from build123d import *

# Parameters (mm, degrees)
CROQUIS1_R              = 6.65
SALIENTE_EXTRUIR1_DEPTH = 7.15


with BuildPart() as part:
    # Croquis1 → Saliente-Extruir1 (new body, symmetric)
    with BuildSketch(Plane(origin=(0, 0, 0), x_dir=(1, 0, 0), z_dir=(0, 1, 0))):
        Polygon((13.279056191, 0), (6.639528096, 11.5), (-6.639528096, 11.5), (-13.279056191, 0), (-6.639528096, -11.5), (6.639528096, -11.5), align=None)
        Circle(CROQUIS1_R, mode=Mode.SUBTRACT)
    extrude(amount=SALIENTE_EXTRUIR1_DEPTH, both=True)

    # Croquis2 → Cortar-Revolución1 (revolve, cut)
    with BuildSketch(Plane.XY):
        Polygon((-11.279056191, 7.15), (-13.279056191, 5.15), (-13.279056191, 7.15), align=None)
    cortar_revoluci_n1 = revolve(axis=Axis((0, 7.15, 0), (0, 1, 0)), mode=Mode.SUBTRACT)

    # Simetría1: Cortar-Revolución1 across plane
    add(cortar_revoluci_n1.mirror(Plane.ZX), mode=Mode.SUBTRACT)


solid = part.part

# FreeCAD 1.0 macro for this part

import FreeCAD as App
import Part
import Sketcher

V = App.Vector
Q = App.Units.Quantity

doc = App.newDocument("Part")
body = doc.addObject("PartDesign::Body", "Body")

sketch1 = body.newObject("Sketcher::SketchObject", "Sketch")
sketch1.AttachmentSupport = (doc.getObject("XZ_Plane"), [""])
sketch1.MapMode = "FlatFace"
sketch1.addGeometry([
    Part.LineSegment(V(13, 0, 0), V(7, -12, 0)),
    Part.LineSegment(V(7, -12, 0), V(-7, -12, 0)),
    Part.LineSegment(V(-7, -12, 0), V(-13, 0, 0)),
    Part.LineSegment(V(-13, 0, 0), V(-7, 12, 0)),
    Part.LineSegment(V(-7, 12, 0), V(7, 12, 0)),
    Part.LineSegment(V(7, 12, 0), V(13, 0, 0)),
    Part.Circle(V(0, 0, 0), V(0, 0, 1), 7),
], False)
sketch1.addConstraint([
    Sketcher.Constraint("Coincident", 0, 2, 1, 1),
    Sketcher.Constraint("Coincident", 1, 2, 2, 1),
    Sketcher.Constraint("Coincident", 2, 2, 3, 1),
    Sketcher.Constraint("Coincident", 3, 2, 4, 1),
    Sketcher.Constraint("Coincident", 4, 2, 5, 1),
    Sketcher.Constraint("Coincident", 5, 2, 0, 1),
    Sketcher.Constraint("Horizontal", 1),
    Sketcher.Constraint("Horizontal", 4),
    Sketcher.Constraint("Coincident", 6, 3, -1, 1),
    Sketcher.Constraint("Symmetric", 0, 2, 3, 2, -1, 1),
    Sketcher.Constraint("Symmetric", 2, 2, 5, 2, -1, 1),
    Sketcher.Constraint("PointOnObject", 2, 2, -1),
    Sketcher.Constraint("Parallel", 2, 5),
    Sketcher.Constraint("Vertical", 1, 2, 3, 2),
    Sketcher.Constraint("Diameter", 6, 13.3),
    Sketcher.Constraint("Angle", 0, Q("-120 deg")),
    Sketcher.Constraint("DistanceY", 1, 2, 3, 2, 23.0),
    Sketcher.Constraint("DistanceX", 1, 2, 1, 1, 13.279056),
])
pad1 = body.newObject("PartDesign::Pad", "Pad")
pad1.Profile = sketch1
pad1.Length = 14.3
pad1.Midplane = True

sketch2 = body.newObject("Sketcher::SketchObject", "Sketch001")
sketch2.AttachmentSupport = (doc.getObject("XY_Plane"), [""])
sketch2.MapMode = "FlatFace"
sketch2.addGeometry([
    Part.LineSegment(V(-13.3, 5.2, 0), V(-11.3, 7.2, 0)),
    Part.LineSegment(V(-11.3, 7.2, 0), V(-13.3, 7.2, 0)),
    Part.LineSegment(V(-13.3, 7.2, 0), V(-13.3, 5.2, 0)),
], False)
sketch2.addConstraint([
    Sketcher.Constraint("Coincident", 0, 2, 1, 1),
    Sketcher.Constraint("Coincident", 1, 2, 2, 1),
    Sketcher.Constraint("Coincident", 2, 2, 0, 1),
    Sketcher.Constraint("Horizontal", 1),
    Sketcher.Constraint("Vertical", 2),
    Sketcher.Constraint("Equal", 1, 2),
    Sketcher.Constraint("DistanceX", 1, 2, 1, 1, 2.0),
    Sketcher.Constraint("DistanceY", -1, 1, 0, 2, 7.15),
    Sketcher.Constraint("DistanceX", 0, 2, -1, 1, 11.279056),
])
groove = body.newObject("PartDesign::Groove", "Groove")
groove.Profile = sketch2
groove.ReferenceAxis = (sketch2, ["V_Axis"])
groove.Angle = 360
doc.recompute()

mirrored = body.newObject("PartDesign::Mirrored", "Mirrored")
mirrored.Originals = [groove]
mirrored.MirrorPlane = (doc.getObject("XZ_Plane"), [""])
body.Tip = mirrored

doc.recompute()
